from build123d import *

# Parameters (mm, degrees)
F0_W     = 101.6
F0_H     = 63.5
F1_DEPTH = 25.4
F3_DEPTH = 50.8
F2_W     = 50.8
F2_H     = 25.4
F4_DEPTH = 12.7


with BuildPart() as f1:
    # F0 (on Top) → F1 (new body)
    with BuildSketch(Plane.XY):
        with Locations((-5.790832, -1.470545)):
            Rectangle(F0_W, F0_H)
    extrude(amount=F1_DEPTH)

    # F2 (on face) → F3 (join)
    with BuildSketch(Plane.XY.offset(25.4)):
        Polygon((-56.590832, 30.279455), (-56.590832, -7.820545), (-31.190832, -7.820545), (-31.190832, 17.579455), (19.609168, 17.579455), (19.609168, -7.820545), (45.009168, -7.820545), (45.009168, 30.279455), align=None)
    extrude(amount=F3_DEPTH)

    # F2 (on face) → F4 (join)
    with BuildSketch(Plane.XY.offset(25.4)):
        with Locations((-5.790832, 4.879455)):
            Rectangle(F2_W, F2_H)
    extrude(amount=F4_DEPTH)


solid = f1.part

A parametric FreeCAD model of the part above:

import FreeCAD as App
import Part
import Sketcher

V = App.Vector
Q = App.Units.Quantity

doc = App.newDocument("Part")
body = doc.addObject("PartDesign::Body", "Body")

# Sketch on XY plane
sketch1 = doc.addObject("Sketcher::SketchObject", "Sketch")
body.addObject(sketch1)
sketch1.AttachmentSupport = (doc.XY_Plane, [""])
sketch1.MapMode = "FlatFace"
sketch1.addGeometry([
    Part.LineSegment(V(-56.590832, 30.279455, 0), V(-56.590832, -33.220545, 0)),
    Part.LineSegment(V(-56.590832, -33.220545, 0), V(45.009168, -33.220545, 0)),
    Part.LineSegment(V(45.009168, -33.220545, 0), V(45.009168, 30.279455, 0)),
    Part.LineSegment(V(45.009168, 30.279455, 0), V(-56.590832, 30.279455, 0)),
], False)
sketch1.addConstraint([
    Sketcher.Constraint("Coincident", 0, 2, 1, 1),
    Sketcher.Constraint("Coincident", 1, 2, 2, 1),
    Sketcher.Constraint("Coincident", 2, 2, 3, 1),
    Sketcher.Constraint("Coincident", 3, 2, 0, 1),
    Sketcher.Constraint("Vertical", 0),
    Sketcher.Constraint("Horizontal", 1),
    Sketcher.Constraint("Vertical", 2),
    Sketcher.Constraint("Horizontal", 3),
    Sketcher.Constraint("DistanceX", 1, 1, 1, 2, Q("4 in")),
    Sketcher.Constraint("DistanceY", 0, 2, 0, 1, Q("2.5 in")),
    Sketcher.Constraint("DistanceX", -1, 1, 1, 2, 45.009168),
    Sketcher.Constraint("DistanceY", 0, 2, -1, 1, 33.220545),
])
pad1 = doc.addObject("PartDesign::Pad", "Pad")
body.addObject(pad1)
pad1.Profile = sketch1
pad1.Length = Q("1 in")

# Sketch on XY plane
sketch2 = doc.addObject("Sketcher::SketchObject", "Sketch001")
body.addObject(sketch2)
sketch2.AttachmentSupport = (doc.XY_Plane, [""])
sketch2.MapMode = "FlatFace"
sketch2.AttachmentOffset = App.Placement(V(0, 0, 1 * 25.4), App.Rotation())
sketch2.addGeometry([
    Part.LineSegment(V(-56.590832, 30.279455, 0), V(-56.590832, -7.820545, 0)),  # 0
    Part.LineSegment(V(-56.590832, -7.820545, 0), V(-31.190832, -7.820545, 0)),  # 1
    Part.LineSegment(V(-31.190832, -7.820545, 0), V(-31.190832, 17.579455, 0)),  # 2
    Part.LineSegment(V(-31.190832, 17.579455, 0), V(19.609168, 17.579455, 0)),  # 3
    Part.LineSegment(V(19.609168, 17.579455, 0), V(19.609168, -7.820545, 0)),  # 4
    Part.LineSegment(V(19.609168, -7.820545, 0), V(45.009168, -7.820545, 0)),  # 5
    Part.LineSegment(V(45.009168, -7.820545, 0), V(45.009168, 30.279455, 0)),  # 6
    Part.LineSegment(V(45.009168, 30.279455, 0), V(-56.590832, 30.279455, 0)),  # 7
], False)
sketch2.addConstraint([
    Sketcher.Constraint("Coincident", 0, 2, 1, 1),
    Sketcher.Constraint("Coincident", 1, 2, 2, 1),
    Sketcher.Constraint("Coincident", 2, 2, 3, 1),
    Sketcher.Constraint("Coincident", 3, 2, 4, 1),
    Sketcher.Constraint("Coincident", 4, 2, 5, 1),
    Sketcher.Constraint("Coincident", 5, 2, 6, 1),
    Sketcher.Constraint("Coincident", 6, 2, 7, 1),
    Sketcher.Constraint("Coincident", 7, 2, 0, 1),
    Sketcher.Constraint("Vertical", 0),
    Sketcher.Constraint("Horizontal", 1),
    Sketcher.Constraint("Vertical", 2),
    Sketcher.Constraint("Horizontal", 3),
    Sketcher.Constraint("Vertical", 4),
    Sketcher.Constraint("Horizontal", 5),
    Sketcher.Constraint("Vertical", 6),
    Sketcher.Constraint("Horizontal", 7),
    Sketcher.Constraint("Horizontal", 1, 2, 4, 2),
    Sketcher.Constraint("Equal", 1, 5),
    Sketcher.Constraint("Equal", 5, 2),
    Sketcher.Constraint("DistanceX", 1, 1, 1, 2, Q("1 in")),
    Sketcher.Constraint("DistanceX", 3, 1, 3, 2, Q("2 in")),
    Sketcher.Constraint("DistanceY", 0, 2, 0, 1, Q("1.5 in")),
    Sketcher.Constraint("DistanceX", -1, 1, 3, 2, 19.609168),
    Sketcher.Constraint("DistanceY", 0, 2, -1, 1, 7.820545),
])
pad2 = doc.addObject("PartDesign::Pad", "Pad001")
body.addObject(pad2)
pad2.Profile = sketch2
pad2.Length = Q("2 in")

# Sketch on XY plane
sketch3 = doc.addObject("Sketcher::SketchObject", "Sketch002")
body.addObject(sketch3)
sketch3.AttachmentSupport = (doc.XY_Plane, [""])
sketch3.MapMode = "FlatFace"
sketch3.AttachmentOffset = App.Placement(V(0, 0, 1 * 25.4), App.Rotation())
sketch3.addGeometry([
    Part.LineSegment(V(-31.190832, 17.579455, 0), V(-31.190832, -7.820545, 0)),
    Part.LineSegment(V(-31.190832, -7.820545, 0), V(19.609168, -7.820545, 0)),
    Part.LineSegment(V(19.609168, -7.820545, 0), V(19.609168, 17.579455, 0)),
    Part.LineSegment(V(19.609168, 17.579455, 0), V(-31.190832, 17.579455, 0)),
], False)
sketch3.addConstraint([
    Sketcher.Constraint("Coincident", 0, 2, 1, 1),
    Sketcher.Constraint("Coincident", 1, 2, 2, 1),
    Sketcher.Constraint("Coincident", 2, 2, 3, 1),
    Sketcher.Constraint("Coincident", 3, 2, 0, 1),
    Sketcher.Constraint("Vertical", 0),
    Sketcher.Constraint("Horizontal", 1),
    Sketcher.Constraint("Vertical", 2),
    Sketcher.Constraint("Horizontal", 3),
    Sketcher.Constraint("DistanceX", 1, 1, 1, 2, Q("2 in")),
    Sketcher.Constraint("DistanceY", 0, 2, 0, 1, Q("1 in")),
    Sketcher.Constraint("DistanceX", -1, 1, 1, 2, 19.609168),
    Sketcher.Constraint("DistanceY", 0, 2, -1, 1, 7.820545),
])
pad3 = doc.addObject("PartDesign::Pad", "Pad002")
body.addObject(pad3)
pad3.Profile = sketch3
pad3.Length = Q("0.5 in")

doc.recompute()
